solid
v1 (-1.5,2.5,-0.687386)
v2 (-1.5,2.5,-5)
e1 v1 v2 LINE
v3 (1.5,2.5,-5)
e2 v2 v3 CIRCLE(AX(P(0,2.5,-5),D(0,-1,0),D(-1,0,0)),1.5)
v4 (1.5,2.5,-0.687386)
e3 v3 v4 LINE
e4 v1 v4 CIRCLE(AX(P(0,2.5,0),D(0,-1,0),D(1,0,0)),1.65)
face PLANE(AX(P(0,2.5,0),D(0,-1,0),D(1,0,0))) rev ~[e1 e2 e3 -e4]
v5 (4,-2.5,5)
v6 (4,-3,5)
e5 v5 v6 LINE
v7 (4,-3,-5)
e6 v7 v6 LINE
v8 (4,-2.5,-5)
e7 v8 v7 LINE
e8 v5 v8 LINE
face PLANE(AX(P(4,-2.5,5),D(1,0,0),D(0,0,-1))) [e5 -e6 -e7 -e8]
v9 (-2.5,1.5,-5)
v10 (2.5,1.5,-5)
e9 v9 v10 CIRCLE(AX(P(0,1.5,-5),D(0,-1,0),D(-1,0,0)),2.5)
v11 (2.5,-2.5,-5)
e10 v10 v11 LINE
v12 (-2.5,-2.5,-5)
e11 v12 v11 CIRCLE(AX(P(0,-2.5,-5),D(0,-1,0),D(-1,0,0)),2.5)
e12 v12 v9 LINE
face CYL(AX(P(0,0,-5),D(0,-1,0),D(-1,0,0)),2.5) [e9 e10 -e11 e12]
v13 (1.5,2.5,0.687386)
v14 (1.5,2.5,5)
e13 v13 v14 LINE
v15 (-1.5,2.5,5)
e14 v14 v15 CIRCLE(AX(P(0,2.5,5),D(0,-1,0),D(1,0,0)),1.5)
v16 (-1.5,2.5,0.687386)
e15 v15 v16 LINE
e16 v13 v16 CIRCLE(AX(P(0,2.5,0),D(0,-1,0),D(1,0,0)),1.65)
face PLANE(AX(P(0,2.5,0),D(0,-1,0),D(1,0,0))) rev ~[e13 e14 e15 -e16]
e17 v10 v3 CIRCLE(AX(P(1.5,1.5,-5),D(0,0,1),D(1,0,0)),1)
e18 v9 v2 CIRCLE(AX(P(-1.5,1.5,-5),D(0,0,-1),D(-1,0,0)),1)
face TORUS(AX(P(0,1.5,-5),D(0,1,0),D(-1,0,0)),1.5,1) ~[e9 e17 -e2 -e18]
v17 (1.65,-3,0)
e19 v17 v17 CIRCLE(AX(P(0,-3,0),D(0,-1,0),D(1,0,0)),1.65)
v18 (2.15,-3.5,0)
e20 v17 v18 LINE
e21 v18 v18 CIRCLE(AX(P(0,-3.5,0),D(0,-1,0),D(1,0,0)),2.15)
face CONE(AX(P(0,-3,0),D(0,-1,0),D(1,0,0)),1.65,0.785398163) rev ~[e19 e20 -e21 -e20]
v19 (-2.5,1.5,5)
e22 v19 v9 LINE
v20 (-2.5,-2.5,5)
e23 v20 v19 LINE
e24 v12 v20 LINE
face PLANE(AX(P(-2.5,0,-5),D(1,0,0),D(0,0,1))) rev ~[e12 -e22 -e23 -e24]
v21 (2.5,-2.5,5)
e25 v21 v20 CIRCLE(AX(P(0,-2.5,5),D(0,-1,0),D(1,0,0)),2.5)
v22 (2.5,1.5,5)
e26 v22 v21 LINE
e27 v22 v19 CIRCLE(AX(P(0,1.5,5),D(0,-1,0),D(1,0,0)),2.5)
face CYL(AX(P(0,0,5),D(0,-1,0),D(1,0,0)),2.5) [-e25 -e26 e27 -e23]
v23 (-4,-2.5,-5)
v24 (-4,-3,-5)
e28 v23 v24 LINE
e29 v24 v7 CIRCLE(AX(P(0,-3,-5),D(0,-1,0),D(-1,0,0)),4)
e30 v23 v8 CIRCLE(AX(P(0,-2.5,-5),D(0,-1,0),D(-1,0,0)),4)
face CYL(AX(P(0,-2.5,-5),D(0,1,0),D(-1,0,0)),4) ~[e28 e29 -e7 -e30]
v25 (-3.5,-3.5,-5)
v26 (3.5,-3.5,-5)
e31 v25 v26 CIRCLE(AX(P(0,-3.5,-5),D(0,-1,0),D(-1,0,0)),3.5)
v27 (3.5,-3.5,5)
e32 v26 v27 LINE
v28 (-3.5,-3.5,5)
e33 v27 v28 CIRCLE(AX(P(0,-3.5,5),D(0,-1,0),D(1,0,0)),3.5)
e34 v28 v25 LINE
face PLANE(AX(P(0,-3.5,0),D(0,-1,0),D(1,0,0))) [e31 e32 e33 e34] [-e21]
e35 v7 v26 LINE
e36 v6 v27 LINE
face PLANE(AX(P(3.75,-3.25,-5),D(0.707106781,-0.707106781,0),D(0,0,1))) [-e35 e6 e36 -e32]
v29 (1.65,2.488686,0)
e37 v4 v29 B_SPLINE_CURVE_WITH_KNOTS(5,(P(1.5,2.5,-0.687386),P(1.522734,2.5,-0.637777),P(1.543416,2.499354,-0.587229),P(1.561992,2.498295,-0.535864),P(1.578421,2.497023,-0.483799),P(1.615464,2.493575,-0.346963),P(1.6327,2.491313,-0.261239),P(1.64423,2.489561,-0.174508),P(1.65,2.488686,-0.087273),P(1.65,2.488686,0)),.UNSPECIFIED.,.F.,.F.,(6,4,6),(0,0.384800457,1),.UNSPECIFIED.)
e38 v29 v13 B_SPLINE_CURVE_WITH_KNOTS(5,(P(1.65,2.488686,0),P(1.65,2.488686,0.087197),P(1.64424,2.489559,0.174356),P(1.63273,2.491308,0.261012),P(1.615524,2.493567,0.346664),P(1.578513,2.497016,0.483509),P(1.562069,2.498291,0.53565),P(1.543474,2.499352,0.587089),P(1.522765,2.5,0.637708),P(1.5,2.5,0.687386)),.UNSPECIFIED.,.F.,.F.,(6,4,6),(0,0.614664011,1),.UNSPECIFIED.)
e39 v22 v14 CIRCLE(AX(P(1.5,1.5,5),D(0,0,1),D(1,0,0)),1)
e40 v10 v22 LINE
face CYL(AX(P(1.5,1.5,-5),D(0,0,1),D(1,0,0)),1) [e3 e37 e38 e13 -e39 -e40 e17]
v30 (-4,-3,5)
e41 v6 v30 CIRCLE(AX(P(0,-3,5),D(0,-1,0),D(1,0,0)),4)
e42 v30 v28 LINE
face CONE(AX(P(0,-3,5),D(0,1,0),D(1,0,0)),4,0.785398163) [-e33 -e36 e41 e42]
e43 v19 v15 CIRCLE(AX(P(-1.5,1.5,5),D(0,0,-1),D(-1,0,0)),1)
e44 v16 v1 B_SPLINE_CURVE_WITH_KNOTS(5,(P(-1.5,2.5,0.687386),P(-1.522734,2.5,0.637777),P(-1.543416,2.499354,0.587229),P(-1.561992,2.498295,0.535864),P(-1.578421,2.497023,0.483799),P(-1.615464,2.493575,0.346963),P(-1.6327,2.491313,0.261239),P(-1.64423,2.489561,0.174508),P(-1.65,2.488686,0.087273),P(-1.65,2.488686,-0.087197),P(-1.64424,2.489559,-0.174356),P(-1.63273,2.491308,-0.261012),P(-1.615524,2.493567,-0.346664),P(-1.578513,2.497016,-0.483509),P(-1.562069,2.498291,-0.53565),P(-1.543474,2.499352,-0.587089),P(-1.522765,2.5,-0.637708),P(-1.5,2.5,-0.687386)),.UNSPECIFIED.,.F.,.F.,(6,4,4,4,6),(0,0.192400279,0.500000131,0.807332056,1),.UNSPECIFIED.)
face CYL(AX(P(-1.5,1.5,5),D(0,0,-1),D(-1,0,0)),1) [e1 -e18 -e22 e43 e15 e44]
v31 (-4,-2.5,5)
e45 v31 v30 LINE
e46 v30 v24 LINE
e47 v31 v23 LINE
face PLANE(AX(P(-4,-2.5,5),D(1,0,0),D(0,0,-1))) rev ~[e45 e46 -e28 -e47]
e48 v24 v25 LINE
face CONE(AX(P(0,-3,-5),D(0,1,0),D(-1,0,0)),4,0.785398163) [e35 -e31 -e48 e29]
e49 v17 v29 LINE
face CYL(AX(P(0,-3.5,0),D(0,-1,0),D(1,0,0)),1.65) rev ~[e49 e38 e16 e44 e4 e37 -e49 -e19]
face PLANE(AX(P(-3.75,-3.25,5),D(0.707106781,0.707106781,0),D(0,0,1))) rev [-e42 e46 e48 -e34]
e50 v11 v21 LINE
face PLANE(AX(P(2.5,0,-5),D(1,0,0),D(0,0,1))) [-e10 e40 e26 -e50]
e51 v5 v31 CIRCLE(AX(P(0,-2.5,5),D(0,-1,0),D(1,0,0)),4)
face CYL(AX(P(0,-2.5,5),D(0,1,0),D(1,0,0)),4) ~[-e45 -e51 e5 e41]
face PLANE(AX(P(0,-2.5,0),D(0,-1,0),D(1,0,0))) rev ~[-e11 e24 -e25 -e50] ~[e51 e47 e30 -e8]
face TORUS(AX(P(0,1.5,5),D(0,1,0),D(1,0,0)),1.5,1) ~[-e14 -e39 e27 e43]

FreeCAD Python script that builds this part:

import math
import FreeCAD as App
import Part
import Sketcher
from FreeCAD import Vector


def edges_at(feature, points):
    """Names of the edges that pass closest to the given points."""
    edges = feature.Shape.Edges
    near = lambda p: min(range(len(edges)), key=lambda i: edges[i].distToShape(Part.Vertex(*p))[0])
    return sorted({f"Edge{near(p) + 1}" for p in points})

doc = App.newDocument("Part")
params = doc.addObject("Spreadsheet::Sheet", "Params")
for row, (alias, value) in enumerate([
    ("sketch1_radius", "2.5 mm"),
    ("sketch1_height", "10 mm"),
    ("pad1_length", "5 mm"),
    ("sketch2_radius", "4 mm"),
    ("sketch2_height", "10 mm"),
    ("pad2_length", "1 mm"),
    ("chamfer_size", "0.5 mm"),
    ("fillet_radius", "1 mm"),
    ("sketch3_diameter", "3.3 mm"),
    ("chamfer2_size", "0.5 mm"),
], start=1):
    params.set(f"A{row}", alias)
    params.set(f"B{row}", "=" + value)
    params.setAlias(f"B{row}", alias)

body = doc.addObject("PartDesign::Body", "Body")

sketch1 = body.newObject("Sketcher::SketchObject", "Sketch")
sketch1.AttachmentSupport = (doc.getObject("XZ_Plane"), [""])
sketch1.MapMode = "FlatFace"
sketch1.addGeometry([
    Part.ArcOfCircle(Part.Circle(Vector(0, -5, 0), Vector(0, 0, 1), 2.5), math.radians(180), math.radians(360)),
    Part.LineSegment(Vector(2.5, -5, 0), Vector(2.5, 5, 0)),
    Part.ArcOfCircle(Part.Circle(Vector(0, 5, 0), Vector(0, 0, 1), 2.5), math.radians(0), math.radians(180)),
    Part.LineSegment(Vector(-2.5, 5, 0), Vector(-2.5, -5, 0)),
], False)
sketch1.addConstraint([
    Sketcher.Constraint("Tangent", 0, 2, 1, 1),
    Sketcher.Constraint("Tangent", 1, 2, 2, 1),
    Sketcher.Constraint("Tangent", 2, 2, 3, 1),
    Sketcher.Constraint("Tangent", 3, 2, 0, 1),
    Sketcher.Constraint("Vertical", 1),
    Sketcher.Constraint("Vertical", 3),
    Sketcher.Constraint("Symmetric", 0, 3, 2, 3, -1, 1),
    Sketcher.Constraint("Radius", 0, 2.5),
    Sketcher.Constraint("DistanceY", 1, 1, 1, 2, 10.0),
])
sketch1.setExpression("Constraints[7]", "Params.sketch1_radius")
sketch1.setExpression("Constraints[8]", "Params.sketch1_height")
pad1 = body.newObject("PartDesign::Pad", "Pad")
pad1.Profile = sketch1
pad1.setExpression("Length", "Params.pad1_length")
pad1.Midplane = True

sketch2 = body.newObject("Sketcher::SketchObject", "Sketch001")
sketch2.AttachmentSupport = (doc.getObject("XZ_Plane"), [""])
sketch2.MapMode = "FlatFace"
sketch2.AttachmentOffset = App.Placement(Vector(0, 0, 2.5), App.Rotation())
sketch2.addGeometry([
    Part.ArcOfCircle(Part.Circle(Vector(0, 5, 0), Vector(0, 0, 1), 4), math.radians(0), math.radians(180)),
    Part.LineSegment(Vector(-4, 5, 0), Vector(-4, -5, 0)),
    Part.ArcOfCircle(Part.Circle(Vector(0, -5, 0), Vector(0, 0, 1), 4), math.radians(180), math.radians(360)),
    Part.LineSegment(Vector(4, -5, 0), Vector(4, 5, 0)),
], False)
sketch2.addConstraint([
    Sketcher.Constraint("Tangent", 0, 2, 1, 1),
    Sketcher.Constraint("Tangent", 1, 2, 2, 1),
    Sketcher.Constraint("Tangent", 2, 2, 3, 1),
    Sketcher.Constraint("Tangent", 3, 2, 0, 1),
    Sketcher.Constraint("Vertical", 1),
    Sketcher.Constraint("Vertical", 3),
    Sketcher.Constraint("Symmetric", 0, 3, 2, 3, -1, 1),
    Sketcher.Constraint("Radius", 0, 4.0),
    Sketcher.Constraint("DistanceY", 1, 2, 1, 1, 10.0),
])
sketch2.setExpression("Constraints[7]", "Params.sketch2_radius")
sketch2.setExpression("Constraints[8]", "Params.sketch2_height")
pad2 = body.newObject("PartDesign::Pad", "Pad001")
pad2.Profile = sketch2
pad2.setExpression("Length", "Params.pad2_length")
doc.recompute()

chamfer = body.newObject("PartDesign::Chamfer", "Chamfer")
chamfer.Base = (pad2, edges_at(pad2, [(0, -3.5, 9)]))
chamfer.setExpression("Size", "Params.chamfer_size")
doc.recompute()

fillet = body.newObject("PartDesign::Fillet", "Fillet")
fillet.Base = (chamfer, edges_at(chamfer, [(0, 2.5, 7.5)]))
fillet.setExpression("Radius", "Params.fillet_radius")

sketch3 = body.newObject("Sketcher::SketchObject", "Sketch002")
sketch3.AttachmentSupport = (doc.getObject("XZ_Plane"), [""])
sketch3.MapMode = "FlatFace"
sketch3.AttachmentOffset = App.Placement(Vector(0, 0, 3.5), App.Rotation())
sketch3.addGeometry(Part.Circle(Vector(0, 0, 0), Vector(0, 0, 1), 1.65), False)
sketch3.addConstraint([
    Sketcher.Constraint("Coincident", 0, 3, -1, 1),
    Sketcher.Constraint("Diameter", 0, 3.3),
])
sketch3.setExpression("Constraints[1]", "Params.sketch3_diameter")
pocket1 = body.newObject("PartDesign::Pocket", "Pocket")
pocket1.Profile = sketch3
pocket1.Type = "ThroughAll"
doc.recompute()

chamfer2 = body.newObject("PartDesign::Chamfer", "Chamfer001")
chamfer2.Base = (pocket1, edges_at(pocket1, [(-1.65, -3.5, 0)]))
chamfer2.setExpression("Size", "Params.chamfer2_size")

doc.recompute()
